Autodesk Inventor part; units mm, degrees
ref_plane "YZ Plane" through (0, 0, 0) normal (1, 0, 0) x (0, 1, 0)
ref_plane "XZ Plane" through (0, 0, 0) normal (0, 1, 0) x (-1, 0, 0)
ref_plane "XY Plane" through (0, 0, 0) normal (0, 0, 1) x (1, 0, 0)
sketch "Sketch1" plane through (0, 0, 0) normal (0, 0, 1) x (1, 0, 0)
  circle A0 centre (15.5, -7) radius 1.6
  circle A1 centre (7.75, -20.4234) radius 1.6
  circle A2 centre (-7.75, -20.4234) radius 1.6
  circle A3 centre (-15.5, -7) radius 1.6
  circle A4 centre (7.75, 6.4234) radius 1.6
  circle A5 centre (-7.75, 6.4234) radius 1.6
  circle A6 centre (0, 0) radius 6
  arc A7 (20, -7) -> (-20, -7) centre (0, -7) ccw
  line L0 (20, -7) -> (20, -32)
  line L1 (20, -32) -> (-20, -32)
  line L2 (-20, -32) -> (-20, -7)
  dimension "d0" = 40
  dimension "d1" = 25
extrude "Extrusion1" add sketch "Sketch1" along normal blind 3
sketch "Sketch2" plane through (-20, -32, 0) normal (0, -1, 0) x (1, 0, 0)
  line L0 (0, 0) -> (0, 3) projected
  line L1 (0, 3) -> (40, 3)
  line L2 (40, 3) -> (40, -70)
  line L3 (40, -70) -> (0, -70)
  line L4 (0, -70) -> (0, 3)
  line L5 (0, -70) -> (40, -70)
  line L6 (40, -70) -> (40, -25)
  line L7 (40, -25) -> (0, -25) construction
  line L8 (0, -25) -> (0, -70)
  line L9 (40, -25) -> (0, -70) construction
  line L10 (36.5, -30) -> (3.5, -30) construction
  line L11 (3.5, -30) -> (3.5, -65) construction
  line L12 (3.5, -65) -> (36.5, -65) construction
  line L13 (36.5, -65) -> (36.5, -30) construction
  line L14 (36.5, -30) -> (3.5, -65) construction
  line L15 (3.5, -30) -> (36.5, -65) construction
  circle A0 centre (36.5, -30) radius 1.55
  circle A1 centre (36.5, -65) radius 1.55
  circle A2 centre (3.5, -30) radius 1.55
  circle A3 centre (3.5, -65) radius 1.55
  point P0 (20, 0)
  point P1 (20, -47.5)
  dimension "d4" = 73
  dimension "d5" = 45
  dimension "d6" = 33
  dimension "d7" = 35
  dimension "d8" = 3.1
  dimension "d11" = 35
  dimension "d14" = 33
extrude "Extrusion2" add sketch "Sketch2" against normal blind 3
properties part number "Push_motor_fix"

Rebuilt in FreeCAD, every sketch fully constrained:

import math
import FreeCAD as App
import Part
import Sketcher
from FreeCAD import Vector


def add_polygon(sketch, points):
    """Adds a closed chain of lines whose ends are joined by coincident constraints."""
    first, n = sketch.GeometryCount, len(points)
    for a, b in zip(points, points[1:] + points[:1]):
        sketch.addGeometry(Part.LineSegment(App.Vector(*a, 0), App.Vector(*b, 0)), False)
    for i in range(n):
        sketch.addConstraint(Sketcher.Constraint("Coincident", first + i, 2, first + (i + 1) % n, 1))

doc = App.newDocument("Part")
body = doc.addObject("PartDesign::Body", "Body")

# Sketch on XY plane
sketch1 = body.newObject("Sketcher::SketchObject", "Sketch")
sketch1.AttachmentSupport = (doc.getObject("XY_Plane"), [""])
sketch1.MapMode = "FlatFace"
sketch1.addGeometry([
    Part.LineSegment(Vector(20, -32, 0), Vector(20, -7, 0)),  # 0
    Part.ArcOfCircle(Part.Circle(Vector(0, -7, 0), Vector(0, 0, 1), 20), math.radians(0), math.radians(180)),  # 1
    Part.LineSegment(Vector(-20, -7, 0), Vector(-20, -32, 0)),  # 2
    Part.LineSegment(Vector(-20, -32, 0), Vector(20, -32, 0)),  # 3
    Part.Circle(Vector(-7.8, -20.4, 0), Vector(0, 0, 1), 1.6),  # 4
    Part.Circle(Vector(7.8, -20.4, 0), Vector(0, 0, 1), 1.6),  # 5
    Part.Circle(Vector(-15.5, -7, 0), Vector(0, 0, 1), 1.6),  # 6
    Part.Circle(Vector(-7.8, 6.4, 0), Vector(0, 0, 1), 1.6),  # 7
    Part.Circle(Vector(0, 0, 0), Vector(0, 0, 1), 6),  # 8
    Part.Circle(Vector(15.5, -7, 0), Vector(0, 0, 1), 1.6),  # 9
    Part.Circle(Vector(7.8, 6.4, 0), Vector(0, 0, 1), 1.6),  # 10
], False)
sketch1.addConstraint([
    Sketcher.Constraint("Tangent", 0, 2, 1, 1),
    Sketcher.Constraint("Tangent", 1, 2, 2, 1),
    Sketcher.Constraint("Coincident", 2, 2, 3, 1),
    Sketcher.Constraint("Coincident", 3, 2, 0, 1),
    Sketcher.Constraint("Vertical", 0),
    Sketcher.Constraint("Vertical", 2),
    Sketcher.Constraint("Horizontal", 3),
    Sketcher.Constraint("Coincident", 8, 3, -1, 1),
    Sketcher.Constraint("Equal", 4, 5),
    Sketcher.Constraint("Equal", 5, 6),
    Sketcher.Constraint("Equal", 6, 7),
    Sketcher.Constraint("Equal", 7, 9),
    Sketcher.Constraint("Equal", 9, 10),
    Sketcher.Constraint("Symmetric", 4, 3, 5, 3, -2),
    Sketcher.Constraint("Symmetric", 6, 3, 9, 3, -2),
    Sketcher.Constraint("Symmetric", 7, 3, 10, 3, -2),
    Sketcher.Constraint("PointOnObject", 1, 3, -2),
    Sketcher.Constraint("Horizontal", 1, 3, 6, 3),
    Sketcher.Constraint("Vertical", 4, 3, 7, 3),
    Sketcher.Constraint("Radius", 1, 20.0),
    Sketcher.Constraint("DistanceY", 0, 1, 0, 2, 25.0),
    Sketcher.Constraint("Diameter", 8, 12.0),
    Sketcher.Constraint("Diameter", 4, 3.2),
    Sketcher.Constraint("DistanceY", 1, 3, -1, 1, 7.0),
    Sketcher.Constraint("DistanceX", 6, 3, -1, 1, 15.5),
    Sketcher.Constraint("DistanceX", 4, 3, 5, 3, 15.5),
    Sketcher.Constraint("DistanceY", 4, 3, -1, 1, 20.4234),
    Sketcher.Constraint("DistanceY", -1, 1, 7, 3, 6.4234),
])
pad1 = body.newObject("PartDesign::Pad", "Pad")
pad1.Profile = sketch1
pad1.Length = 3

# Sketch on XZ plane
sketch2 = body.newObject("Sketcher::SketchObject", "Sketch001")
sketch2.AttachmentSupport = (doc.getObject("XZ_Plane"), [""])
sketch2.MapMode = "FlatFace"
sketch2.AttachmentOffset = App.Placement(Vector(0, 0, 32), App.Rotation())
add_polygon(sketch2, [(-20, 3), (-20, -70), (20, -70), (20, 3)])  # lines 0-3
sketch2.addGeometry(Part.Circle(Vector(-16.5, -65, 0), Vector(0, 0, 1), 1.6), False)  # 4
sketch2.addGeometry(Part.Circle(Vector(16.5, -65, 0), Vector(0, 0, 1), 1.6), False)  # 5
sketch2.addGeometry(Part.Circle(Vector(-16.5, -30, 0), Vector(0, 0, 1), 1.6), False)  # 6
sketch2.addGeometry(Part.Circle(Vector(16.5, -30, 0), Vector(0, 0, 1), 1.6), False)  # 7
sketch2.addConstraint([
    Sketcher.Constraint("Vertical", 0),
    Sketcher.Constraint("Horizontal", 1),
    Sketcher.Constraint("Vertical", 2),
    Sketcher.Constraint("Horizontal", 3),
    Sketcher.Constraint("Equal", 4, 5),
    Sketcher.Constraint("Equal", 5, 6),
    Sketcher.Constraint("Equal", 6, 7),
    Sketcher.Constraint("Symmetric", 4, 3, 5, 3, -2),
    Sketcher.Constraint("Symmetric", 6, 3, 7, 3, -2),
    Sketcher.Constraint("Vertical", 4, 3, 6, 3),
    Sketcher.Constraint("Diameter", 4, 3.1),
    Sketcher.Constraint("DistanceY", 0, 2, 0, 1, 73.0),
    Sketcher.Constraint("DistanceX", 4, 3, 5, 3, 33.0),
    Sketcher.Constraint("DistanceY", 4, 3, 6, 3, 35.0),
    Sketcher.Constraint("DistanceY", 7, 3, 2, 2, 33.0),
    Sketcher.Constraint("DistanceX", 1, 1, 1, 2, 40.0),
    Sketcher.Constraint("DistanceY", 4, 3, -1, 1, 65.0),
    Sketcher.Constraint("DistanceX", 0, 2, -1, 1, 20.0),
])
pad2 = body.newObject("PartDesign::Pad", "Pad001")
pad2.Profile = sketch2
pad2.Length = 3
pad2.Reversed = True

doc.recompute()
